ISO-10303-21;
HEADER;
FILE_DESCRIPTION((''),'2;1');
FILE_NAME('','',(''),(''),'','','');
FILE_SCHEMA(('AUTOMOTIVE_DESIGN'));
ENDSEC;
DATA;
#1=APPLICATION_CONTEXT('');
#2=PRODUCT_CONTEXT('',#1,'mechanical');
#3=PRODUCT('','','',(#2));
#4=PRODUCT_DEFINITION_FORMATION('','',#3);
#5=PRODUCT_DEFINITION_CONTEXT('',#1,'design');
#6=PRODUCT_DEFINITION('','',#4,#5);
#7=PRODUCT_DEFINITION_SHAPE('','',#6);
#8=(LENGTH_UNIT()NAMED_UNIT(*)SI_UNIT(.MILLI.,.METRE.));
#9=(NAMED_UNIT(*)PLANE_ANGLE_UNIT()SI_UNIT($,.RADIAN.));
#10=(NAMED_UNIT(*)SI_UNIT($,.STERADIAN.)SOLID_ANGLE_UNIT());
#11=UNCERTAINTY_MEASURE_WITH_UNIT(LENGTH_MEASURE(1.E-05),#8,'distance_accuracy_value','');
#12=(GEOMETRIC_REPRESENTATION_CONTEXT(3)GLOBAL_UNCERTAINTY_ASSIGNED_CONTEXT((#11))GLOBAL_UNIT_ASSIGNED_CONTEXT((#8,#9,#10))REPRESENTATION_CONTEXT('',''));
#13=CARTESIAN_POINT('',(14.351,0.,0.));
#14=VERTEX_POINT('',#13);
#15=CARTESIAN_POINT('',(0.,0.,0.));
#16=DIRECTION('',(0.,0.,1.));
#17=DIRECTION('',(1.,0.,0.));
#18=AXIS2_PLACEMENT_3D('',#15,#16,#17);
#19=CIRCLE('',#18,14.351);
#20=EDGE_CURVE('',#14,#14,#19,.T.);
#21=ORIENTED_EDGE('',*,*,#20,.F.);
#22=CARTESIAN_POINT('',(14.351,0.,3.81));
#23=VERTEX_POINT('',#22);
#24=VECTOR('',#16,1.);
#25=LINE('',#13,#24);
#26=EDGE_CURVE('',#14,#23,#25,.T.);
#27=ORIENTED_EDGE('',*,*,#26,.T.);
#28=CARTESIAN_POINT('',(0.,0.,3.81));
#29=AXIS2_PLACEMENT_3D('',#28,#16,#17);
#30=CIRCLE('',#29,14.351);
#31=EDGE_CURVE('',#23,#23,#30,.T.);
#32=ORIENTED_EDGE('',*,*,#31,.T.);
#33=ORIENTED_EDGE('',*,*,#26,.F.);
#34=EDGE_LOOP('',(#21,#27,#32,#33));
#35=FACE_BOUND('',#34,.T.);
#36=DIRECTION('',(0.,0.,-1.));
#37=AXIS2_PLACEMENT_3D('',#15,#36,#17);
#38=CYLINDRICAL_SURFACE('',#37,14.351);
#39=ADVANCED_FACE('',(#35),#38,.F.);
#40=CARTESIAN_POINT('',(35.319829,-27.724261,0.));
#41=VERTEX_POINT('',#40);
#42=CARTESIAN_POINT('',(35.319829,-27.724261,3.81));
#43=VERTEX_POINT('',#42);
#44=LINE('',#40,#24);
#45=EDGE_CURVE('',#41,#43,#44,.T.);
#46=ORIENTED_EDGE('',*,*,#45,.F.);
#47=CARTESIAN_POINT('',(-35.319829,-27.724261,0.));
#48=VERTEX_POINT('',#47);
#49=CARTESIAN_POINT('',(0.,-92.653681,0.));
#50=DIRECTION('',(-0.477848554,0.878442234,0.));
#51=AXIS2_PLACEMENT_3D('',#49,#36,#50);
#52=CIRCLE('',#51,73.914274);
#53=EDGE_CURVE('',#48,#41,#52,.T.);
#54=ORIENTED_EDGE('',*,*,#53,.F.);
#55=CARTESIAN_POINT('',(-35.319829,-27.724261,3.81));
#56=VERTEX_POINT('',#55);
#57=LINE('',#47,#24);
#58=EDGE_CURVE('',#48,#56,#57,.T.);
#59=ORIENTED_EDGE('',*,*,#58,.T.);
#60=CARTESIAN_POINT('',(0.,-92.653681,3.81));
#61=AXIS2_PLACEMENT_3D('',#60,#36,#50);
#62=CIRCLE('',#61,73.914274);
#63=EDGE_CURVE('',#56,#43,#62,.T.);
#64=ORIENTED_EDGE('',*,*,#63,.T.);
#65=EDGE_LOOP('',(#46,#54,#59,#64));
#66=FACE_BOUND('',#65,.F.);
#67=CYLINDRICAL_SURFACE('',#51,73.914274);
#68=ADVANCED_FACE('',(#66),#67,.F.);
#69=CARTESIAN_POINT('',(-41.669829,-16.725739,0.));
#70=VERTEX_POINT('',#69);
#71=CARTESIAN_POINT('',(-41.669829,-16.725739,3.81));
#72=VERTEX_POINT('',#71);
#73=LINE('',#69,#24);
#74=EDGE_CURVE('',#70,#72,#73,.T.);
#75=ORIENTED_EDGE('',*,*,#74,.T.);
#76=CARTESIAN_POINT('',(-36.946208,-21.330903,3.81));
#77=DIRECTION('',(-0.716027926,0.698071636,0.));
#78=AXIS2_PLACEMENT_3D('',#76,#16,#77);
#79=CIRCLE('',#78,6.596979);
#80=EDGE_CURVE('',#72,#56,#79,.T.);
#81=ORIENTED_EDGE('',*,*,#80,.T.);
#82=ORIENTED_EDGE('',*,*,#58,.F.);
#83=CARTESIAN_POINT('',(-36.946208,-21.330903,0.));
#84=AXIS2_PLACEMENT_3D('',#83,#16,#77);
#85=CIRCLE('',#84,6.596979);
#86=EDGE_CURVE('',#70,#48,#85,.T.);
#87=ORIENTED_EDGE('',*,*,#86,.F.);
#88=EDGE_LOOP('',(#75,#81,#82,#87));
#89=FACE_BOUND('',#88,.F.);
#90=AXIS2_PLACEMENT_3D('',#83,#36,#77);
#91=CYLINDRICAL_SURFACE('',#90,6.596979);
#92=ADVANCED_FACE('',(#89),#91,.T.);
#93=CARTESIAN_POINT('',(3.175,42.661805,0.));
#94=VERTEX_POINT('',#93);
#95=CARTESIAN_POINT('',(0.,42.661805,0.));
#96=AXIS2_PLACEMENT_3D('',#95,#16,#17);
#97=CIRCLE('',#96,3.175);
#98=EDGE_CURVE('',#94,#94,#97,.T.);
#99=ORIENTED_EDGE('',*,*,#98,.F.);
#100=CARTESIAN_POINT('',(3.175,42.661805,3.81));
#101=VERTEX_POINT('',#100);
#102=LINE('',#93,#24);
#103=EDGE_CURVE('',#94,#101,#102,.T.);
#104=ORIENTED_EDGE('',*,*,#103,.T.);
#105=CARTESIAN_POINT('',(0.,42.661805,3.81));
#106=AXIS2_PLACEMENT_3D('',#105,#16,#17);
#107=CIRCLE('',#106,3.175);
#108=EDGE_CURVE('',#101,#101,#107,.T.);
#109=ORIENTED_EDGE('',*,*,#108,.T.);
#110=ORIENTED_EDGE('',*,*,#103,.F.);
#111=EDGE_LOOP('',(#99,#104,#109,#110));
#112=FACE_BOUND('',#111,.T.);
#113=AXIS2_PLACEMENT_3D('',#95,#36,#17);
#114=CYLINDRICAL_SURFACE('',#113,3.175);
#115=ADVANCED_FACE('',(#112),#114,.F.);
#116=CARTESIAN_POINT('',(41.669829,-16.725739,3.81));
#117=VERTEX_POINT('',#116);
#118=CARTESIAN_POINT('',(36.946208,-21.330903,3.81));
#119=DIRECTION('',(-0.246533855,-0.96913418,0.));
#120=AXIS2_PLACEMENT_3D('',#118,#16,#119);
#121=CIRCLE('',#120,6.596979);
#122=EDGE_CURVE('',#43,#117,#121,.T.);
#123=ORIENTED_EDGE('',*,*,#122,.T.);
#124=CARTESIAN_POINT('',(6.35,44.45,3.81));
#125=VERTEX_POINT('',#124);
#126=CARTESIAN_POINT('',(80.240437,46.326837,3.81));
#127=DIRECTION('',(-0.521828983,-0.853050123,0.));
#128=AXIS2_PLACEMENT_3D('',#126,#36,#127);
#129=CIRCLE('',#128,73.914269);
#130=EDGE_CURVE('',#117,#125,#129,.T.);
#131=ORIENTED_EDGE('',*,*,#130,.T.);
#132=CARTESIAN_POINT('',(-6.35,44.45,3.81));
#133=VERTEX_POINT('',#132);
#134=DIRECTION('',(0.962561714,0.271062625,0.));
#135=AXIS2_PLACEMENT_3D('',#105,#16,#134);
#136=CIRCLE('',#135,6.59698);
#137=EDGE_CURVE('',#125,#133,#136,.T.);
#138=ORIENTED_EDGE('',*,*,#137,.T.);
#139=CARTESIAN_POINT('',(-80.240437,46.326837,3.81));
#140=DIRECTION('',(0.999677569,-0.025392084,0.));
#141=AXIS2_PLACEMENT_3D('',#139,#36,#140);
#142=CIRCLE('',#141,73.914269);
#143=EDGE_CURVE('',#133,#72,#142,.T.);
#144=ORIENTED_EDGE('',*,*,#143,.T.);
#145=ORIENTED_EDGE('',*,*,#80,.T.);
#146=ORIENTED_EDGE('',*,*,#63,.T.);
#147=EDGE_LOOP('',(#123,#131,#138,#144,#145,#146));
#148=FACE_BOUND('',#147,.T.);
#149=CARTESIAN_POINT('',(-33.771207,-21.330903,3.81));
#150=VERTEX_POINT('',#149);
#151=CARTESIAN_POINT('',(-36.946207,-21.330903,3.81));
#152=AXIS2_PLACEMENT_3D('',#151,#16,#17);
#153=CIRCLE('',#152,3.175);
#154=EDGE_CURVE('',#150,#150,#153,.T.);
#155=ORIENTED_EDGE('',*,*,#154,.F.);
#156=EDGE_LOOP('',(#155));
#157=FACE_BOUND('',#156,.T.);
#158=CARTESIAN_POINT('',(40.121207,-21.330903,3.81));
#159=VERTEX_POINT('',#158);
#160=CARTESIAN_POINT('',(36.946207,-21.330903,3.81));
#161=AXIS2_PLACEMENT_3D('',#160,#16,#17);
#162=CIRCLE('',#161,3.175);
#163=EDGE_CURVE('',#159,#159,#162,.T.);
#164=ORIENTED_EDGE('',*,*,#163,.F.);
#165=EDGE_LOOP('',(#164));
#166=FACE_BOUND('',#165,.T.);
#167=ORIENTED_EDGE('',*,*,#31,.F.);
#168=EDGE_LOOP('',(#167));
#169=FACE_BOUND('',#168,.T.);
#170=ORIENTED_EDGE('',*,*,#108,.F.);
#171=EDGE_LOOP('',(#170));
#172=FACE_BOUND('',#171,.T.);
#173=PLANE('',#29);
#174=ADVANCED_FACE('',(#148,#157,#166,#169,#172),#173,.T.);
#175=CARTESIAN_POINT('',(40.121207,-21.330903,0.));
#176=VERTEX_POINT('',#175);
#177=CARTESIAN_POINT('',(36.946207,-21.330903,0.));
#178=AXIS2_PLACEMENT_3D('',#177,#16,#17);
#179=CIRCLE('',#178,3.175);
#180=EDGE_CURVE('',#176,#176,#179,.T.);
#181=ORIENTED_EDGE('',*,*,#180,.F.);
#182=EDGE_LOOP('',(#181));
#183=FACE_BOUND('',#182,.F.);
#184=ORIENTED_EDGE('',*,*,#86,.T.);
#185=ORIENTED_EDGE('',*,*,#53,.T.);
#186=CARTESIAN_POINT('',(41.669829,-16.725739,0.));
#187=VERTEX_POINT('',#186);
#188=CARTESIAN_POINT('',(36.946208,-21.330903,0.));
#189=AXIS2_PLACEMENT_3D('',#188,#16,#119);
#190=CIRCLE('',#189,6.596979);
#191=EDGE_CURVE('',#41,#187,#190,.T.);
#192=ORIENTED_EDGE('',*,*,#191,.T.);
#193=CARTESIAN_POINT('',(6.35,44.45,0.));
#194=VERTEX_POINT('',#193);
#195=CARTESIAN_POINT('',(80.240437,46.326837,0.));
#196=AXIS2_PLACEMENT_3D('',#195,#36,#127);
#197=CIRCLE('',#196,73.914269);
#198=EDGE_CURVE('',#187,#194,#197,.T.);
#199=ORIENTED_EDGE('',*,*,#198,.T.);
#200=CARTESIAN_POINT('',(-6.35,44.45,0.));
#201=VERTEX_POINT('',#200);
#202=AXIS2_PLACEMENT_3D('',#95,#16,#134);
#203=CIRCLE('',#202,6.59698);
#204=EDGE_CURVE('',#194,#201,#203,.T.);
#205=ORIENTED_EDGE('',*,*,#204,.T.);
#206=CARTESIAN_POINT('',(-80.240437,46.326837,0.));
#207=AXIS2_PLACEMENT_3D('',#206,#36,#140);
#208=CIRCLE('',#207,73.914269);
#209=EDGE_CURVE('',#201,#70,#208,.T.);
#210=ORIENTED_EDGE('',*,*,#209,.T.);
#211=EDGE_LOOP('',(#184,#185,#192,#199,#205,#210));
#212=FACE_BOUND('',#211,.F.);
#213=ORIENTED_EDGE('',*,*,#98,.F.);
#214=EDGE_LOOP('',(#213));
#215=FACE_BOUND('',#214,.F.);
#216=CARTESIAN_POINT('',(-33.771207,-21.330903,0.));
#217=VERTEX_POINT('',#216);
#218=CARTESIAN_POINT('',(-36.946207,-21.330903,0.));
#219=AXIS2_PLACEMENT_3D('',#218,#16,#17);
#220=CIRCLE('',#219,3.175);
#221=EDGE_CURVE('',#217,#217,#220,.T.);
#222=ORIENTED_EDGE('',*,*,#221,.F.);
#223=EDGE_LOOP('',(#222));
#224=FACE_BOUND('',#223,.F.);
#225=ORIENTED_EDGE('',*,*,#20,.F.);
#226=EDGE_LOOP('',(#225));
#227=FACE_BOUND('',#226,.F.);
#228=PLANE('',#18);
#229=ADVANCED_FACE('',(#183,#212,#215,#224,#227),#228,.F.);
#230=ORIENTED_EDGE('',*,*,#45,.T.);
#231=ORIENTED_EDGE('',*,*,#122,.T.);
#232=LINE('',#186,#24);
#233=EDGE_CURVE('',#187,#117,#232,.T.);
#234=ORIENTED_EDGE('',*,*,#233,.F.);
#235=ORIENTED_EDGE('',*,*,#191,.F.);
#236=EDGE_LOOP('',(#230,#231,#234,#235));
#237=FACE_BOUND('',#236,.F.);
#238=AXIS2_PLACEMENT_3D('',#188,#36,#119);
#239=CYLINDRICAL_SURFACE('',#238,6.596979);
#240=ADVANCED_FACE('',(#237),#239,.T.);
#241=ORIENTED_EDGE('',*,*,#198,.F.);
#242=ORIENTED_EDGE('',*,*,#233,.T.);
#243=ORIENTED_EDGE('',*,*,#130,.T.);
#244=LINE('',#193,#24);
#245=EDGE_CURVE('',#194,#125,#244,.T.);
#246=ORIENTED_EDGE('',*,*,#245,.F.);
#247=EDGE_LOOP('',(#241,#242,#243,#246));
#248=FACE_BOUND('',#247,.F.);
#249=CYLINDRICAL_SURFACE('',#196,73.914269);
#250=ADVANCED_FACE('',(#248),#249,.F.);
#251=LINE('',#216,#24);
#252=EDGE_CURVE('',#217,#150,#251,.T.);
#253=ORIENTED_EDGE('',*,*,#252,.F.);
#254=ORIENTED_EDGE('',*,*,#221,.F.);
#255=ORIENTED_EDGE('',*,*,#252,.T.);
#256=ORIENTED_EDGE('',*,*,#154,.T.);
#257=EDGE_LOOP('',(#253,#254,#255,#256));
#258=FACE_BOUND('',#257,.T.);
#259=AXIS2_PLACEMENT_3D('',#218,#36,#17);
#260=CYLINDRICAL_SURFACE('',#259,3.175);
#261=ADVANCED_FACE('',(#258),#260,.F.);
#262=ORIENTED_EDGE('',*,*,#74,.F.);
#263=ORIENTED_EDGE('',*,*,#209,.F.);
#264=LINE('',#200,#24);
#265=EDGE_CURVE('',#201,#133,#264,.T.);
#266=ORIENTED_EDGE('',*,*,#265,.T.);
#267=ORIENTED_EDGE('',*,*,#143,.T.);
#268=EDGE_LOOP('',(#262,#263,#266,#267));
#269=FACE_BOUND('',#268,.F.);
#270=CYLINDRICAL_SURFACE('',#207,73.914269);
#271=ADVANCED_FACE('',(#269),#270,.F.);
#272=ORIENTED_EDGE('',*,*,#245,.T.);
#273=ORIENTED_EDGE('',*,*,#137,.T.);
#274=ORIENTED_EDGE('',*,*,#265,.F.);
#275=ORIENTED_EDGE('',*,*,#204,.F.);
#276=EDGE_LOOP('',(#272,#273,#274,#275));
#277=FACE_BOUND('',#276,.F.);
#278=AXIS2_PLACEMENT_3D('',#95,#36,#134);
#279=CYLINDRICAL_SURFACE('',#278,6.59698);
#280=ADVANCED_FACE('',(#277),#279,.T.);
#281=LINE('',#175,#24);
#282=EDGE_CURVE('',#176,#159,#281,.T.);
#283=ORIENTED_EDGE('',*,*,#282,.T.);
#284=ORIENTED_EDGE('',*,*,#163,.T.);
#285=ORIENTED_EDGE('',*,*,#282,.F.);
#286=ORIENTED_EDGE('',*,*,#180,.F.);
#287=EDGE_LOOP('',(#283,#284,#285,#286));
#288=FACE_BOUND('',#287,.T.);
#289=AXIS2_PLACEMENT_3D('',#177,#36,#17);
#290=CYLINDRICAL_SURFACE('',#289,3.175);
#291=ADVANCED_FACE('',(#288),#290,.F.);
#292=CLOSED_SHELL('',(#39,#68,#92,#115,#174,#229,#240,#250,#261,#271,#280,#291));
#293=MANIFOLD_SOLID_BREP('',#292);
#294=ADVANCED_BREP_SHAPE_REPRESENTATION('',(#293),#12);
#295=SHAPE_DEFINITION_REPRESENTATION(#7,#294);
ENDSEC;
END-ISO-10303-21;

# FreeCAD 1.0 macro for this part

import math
import FreeCAD as App
import Part
import Sketcher

V = App.Vector
Q = App.Units.Quantity

doc = App.newDocument("Part")
body = doc.addObject("PartDesign::Body", "Body")

# Sketch on XY plane
sketch1 = body.newObject("Sketcher::SketchObject", "Sketch")
sketch1.AttachmentSupport = (doc.getObject("XY_Plane"), [""])
sketch1.MapMode = "FlatFace"
sketch1.addGeometry([
    Part.ArcOfCircle(Part.Circle(V(80.240437, 46.326837, 0), V(0, 0, 1), 73.914269), math.radians(-178.544984), math.radians(-121.455016)),  # 0
    Part.ArcOfCircle(Part.Circle(V(0, 42.661805, 0), V(0, 0, 1), 6.59698), math.radians(15.727509), math.radians(164.272491)),  # 1
    Part.ArcOfCircle(Part.Circle(V(-80.240437, 46.326837, 0), V(0, 0, 1), 73.914269), math.radians(-58.544984), math.radians(-1.455016)),  # 2
    Part.ArcOfCircle(Part.Circle(V(-36.946208, -21.330903, 0), V(0, 0, 1), 6.596979), math.radians(135.727505), math.radians(284.272498)),  # 3
    Part.ArcOfCircle(Part.Circle(V(0, -92.653681, 0), V(0, 0, 1), 73.914274), math.radians(61.455018), math.radians(118.544982)),  # 4
    Part.ArcOfCircle(Part.Circle(V(36.946208, -21.330903, 0), V(0, 0, 1), 6.596979), math.radians(-104.272498), math.radians(44.272495)),  # 5
    Part.Circle(V(-36.946207, -21.330903, 0), V(0, 0, 1), 3.175),  # 6
    Part.Circle(V(36.946207, -21.330903, 0), V(0, 0, 1), 3.175),  # 7
    Part.Circle(V(0, 0, 0), V(0, 0, 1), 14.351),  # 8
    Part.Circle(V(0, 42.661805, 0), V(0, 0, 1), 3.175),  # 9
], False)
sketch1.addConstraint([
    Sketcher.Constraint("Coincident", 0, 1, 1, 1),
    Sketcher.Constraint("Coincident", 1, 2, 2, 2),
    Sketcher.Constraint("Coincident", 2, 1, 3, 1),
    Sketcher.Constraint("Coincident", 3, 2, 4, 2),
    Sketcher.Constraint("Coincident", 4, 1, 5, 1),
    Sketcher.Constraint("Coincident", 5, 2, 0, 2),
    Sketcher.Constraint("Coincident", 8, 3, -1, 1),
    Sketcher.Constraint("Coincident", 6, 3, 3, 3),
    Sketcher.Constraint("Coincident", 7, 3, 5, 3),
    Sketcher.Constraint("Coincident", 9, 3, 1, 3),
    Sketcher.Constraint("Equal", 0, 2),
    Sketcher.Constraint("Equal", 1, 3),
    Sketcher.Constraint("Equal", 3, 5),
    Sketcher.Constraint("Equal", 6, 7),
    Sketcher.Constraint("Equal", 7, 9),
    Sketcher.Constraint("Symmetric", 0, 3, 2, 3, -2),
    Sketcher.Constraint("Symmetric", 3, 3, 5, 3, -2),
    Sketcher.Constraint("PointOnObject", 1, 3, -2),
    Sketcher.Constraint("PointOnObject", 4, 3, -2),
    Sketcher.Constraint("Diameter", 6, Q("0.25 in")),
    Sketcher.Constraint("Diameter", 8, Q("1.13 in")),
    Sketcher.Constraint("DistanceX", 1, 2, 0, 1, Q("0.5 in")),
    Sketcher.Constraint("DistanceY", -1, 1, 0, 1, Q("1.75 in")),
    Sketcher.Constraint("DistanceX", 2, 1, 3, 2, Q("0.25 in")),
    Sketcher.Constraint("Radius", 0, Q("73.914269 mm")),
    Sketcher.Constraint("Radius", 1, Q("6.59698 mm")),
    Sketcher.Constraint("Radius", 4, Q("73.914274 mm")),
    Sketcher.Constraint("DistanceY", 4, 3, -1, 1, Q("92.653681 mm")),
    Sketcher.Constraint("DistanceX", 2, 1, -1, 1, Q("41.669829 mm")),
    Sketcher.Constraint("DistanceY", 2, 1, -1, 1, Q("16.725739 mm")),
])
pad1 = body.newObject("PartDesign::Pad", "Pad")
pad1.Profile = sketch1
pad1.Length = Q("0.15 in")

doc.recompute()
